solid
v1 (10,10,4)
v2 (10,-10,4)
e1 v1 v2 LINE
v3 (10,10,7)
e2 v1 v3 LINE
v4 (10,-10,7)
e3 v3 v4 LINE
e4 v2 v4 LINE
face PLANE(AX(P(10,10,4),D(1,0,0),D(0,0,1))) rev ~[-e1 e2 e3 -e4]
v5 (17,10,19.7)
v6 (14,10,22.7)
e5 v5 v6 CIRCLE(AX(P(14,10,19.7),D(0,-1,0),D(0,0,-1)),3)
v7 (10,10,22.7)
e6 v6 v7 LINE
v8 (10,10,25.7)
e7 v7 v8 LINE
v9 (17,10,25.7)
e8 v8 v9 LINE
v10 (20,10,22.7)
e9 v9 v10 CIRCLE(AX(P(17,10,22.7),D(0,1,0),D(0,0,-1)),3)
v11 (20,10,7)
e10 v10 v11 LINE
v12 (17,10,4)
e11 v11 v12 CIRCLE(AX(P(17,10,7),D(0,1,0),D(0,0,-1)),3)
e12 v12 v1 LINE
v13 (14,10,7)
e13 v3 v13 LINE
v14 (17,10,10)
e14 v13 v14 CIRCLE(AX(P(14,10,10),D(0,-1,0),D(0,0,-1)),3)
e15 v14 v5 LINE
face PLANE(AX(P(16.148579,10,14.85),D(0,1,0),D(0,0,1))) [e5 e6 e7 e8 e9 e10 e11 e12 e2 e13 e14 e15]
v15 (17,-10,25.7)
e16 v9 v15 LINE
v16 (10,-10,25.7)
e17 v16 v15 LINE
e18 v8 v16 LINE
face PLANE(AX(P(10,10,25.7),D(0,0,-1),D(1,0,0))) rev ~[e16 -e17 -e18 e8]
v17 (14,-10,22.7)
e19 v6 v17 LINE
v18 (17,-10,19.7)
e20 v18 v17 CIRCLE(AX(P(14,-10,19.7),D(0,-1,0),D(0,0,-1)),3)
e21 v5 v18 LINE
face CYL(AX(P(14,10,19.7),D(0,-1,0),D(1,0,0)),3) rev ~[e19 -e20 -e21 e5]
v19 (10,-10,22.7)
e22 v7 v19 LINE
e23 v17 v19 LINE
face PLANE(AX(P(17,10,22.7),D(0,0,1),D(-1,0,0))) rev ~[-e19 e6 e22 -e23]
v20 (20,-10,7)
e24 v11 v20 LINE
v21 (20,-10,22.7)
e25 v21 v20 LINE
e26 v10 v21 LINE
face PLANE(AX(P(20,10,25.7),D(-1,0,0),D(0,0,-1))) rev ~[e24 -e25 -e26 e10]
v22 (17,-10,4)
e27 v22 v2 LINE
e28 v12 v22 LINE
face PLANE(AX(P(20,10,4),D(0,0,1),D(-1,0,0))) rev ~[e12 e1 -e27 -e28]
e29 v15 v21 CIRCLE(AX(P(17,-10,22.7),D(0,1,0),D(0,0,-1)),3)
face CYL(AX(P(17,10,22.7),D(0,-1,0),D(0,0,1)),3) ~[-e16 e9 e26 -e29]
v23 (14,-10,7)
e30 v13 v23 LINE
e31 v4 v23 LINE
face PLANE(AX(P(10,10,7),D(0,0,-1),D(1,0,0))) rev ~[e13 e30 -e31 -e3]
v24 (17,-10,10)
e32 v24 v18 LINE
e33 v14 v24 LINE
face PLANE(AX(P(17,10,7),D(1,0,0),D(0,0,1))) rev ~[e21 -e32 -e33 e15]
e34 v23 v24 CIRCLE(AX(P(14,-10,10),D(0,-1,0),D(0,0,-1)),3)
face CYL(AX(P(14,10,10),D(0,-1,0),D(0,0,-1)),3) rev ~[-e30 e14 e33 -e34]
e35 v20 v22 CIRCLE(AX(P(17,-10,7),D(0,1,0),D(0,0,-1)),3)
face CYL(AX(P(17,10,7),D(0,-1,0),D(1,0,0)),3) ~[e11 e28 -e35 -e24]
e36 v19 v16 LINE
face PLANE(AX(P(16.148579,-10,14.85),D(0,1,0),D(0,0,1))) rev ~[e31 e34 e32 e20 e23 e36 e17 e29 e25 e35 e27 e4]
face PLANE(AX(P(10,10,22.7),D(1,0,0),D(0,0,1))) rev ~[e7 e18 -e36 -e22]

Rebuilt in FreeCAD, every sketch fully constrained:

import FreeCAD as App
import Part
import Sketcher

V = App.Vector
Q = App.Units.Quantity


def edges_at(feature, points):
    """Names of the edges that pass closest to the given points."""
    edges = feature.Shape.Edges
    near = lambda p: min(range(len(edges)), key=lambda i: edges[i].distToShape(Part.Vertex(*p))[0])
    return sorted({f"Edge{near(p) + 1}" for p in points})


def add_polygon(sketch, points):
    """Adds a closed chain of lines whose ends are joined by coincident constraints."""
    first, n = sketch.GeometryCount, len(points)
    for a, b in zip(points, points[1:] + points[:1]):
        sketch.addGeometry(Part.LineSegment(App.Vector(*a, 0), App.Vector(*b, 0)), False)
    for i in range(n):
        sketch.addConstraint(Sketcher.Constraint("Coincident", first + i, 2, first + (i + 1) % n, 1))

doc = App.newDocument("Part")
params = doc.addObject("Spreadsheet::Sheet", "Params")
for row, (alias, value) in enumerate([
    ("sketch1_width", "10 mm"),
    ("sketch1_width2", "7 mm"),
    ("sketch1_height", "3 mm"),
    ("sketch1_height2", "21.7 mm"),
    ("sketch2_height", "20 mm"),
    ("fillet_radius", "3 mm"),
    ("fillet2_radius", "3 mm"),
    ("fillet3_radius", "3 mm"),
    ("fillet4_radius", "3 mm"),
], start=1):
    params.set(f"A{row}", alias)
    params.set(f"B{row}", "=" + value)
    params.setAlias(f"B{row}", alias)

body = doc.addObject("PartDesign::Body", "Body")

# Sketch on XZ plane
sketch1 = body.newObject("Sketcher::SketchObject", "Sketch")
sketch1.AttachmentSupport = (doc.getObject("XZ_Plane"), [""])
sketch1.MapMode = "FlatFace"
add_polygon(sketch1, [(10, 25.7), (20, 25.7), (20, 4), (10, 4), (10, 7), (17, 7), (17, 22.7), (10, 22.7)])  # lines 0-7
sketch1.addConstraint([
    Sketcher.Constraint("Horizontal", 0),
    Sketcher.Constraint("Vertical", 1),
    Sketcher.Constraint("Horizontal", 2),
    Sketcher.Constraint("Vertical", 3),
    Sketcher.Constraint("Horizontal", 4),
    Sketcher.Constraint("Vertical", 5),
    Sketcher.Constraint("Horizontal", 6),
    Sketcher.Constraint("Vertical", 7),
    Sketcher.Constraint("Vertical", 3, 2, 6, 2),
    Sketcher.Constraint("Equal", 3, 7),
    Sketcher.Constraint("DistanceX", 0, 1, 0, 2, Q("10 mm")),
    Sketcher.Constraint("DistanceX", 4, 1, 4, 2, Q("7 mm")),
    Sketcher.Constraint("DistanceY", 3, 1, 3, 2, Q("3 mm")),
    Sketcher.Constraint("DistanceY", 1, 2, 1, 1, Q("21.7 mm")),
    Sketcher.Constraint("DistanceX", -1, 1, 0, 2, Q("20 mm")),
    Sketcher.Constraint("DistanceY", -1, 1, 1, 2, Q("4 mm")),
])
sketch1.setExpression("Constraints[18]", "Params.sketch1_width")
sketch1.setExpression("Constraints[19]", "Params.sketch1_width2")
sketch1.setExpression("Constraints[20]", "Params.sketch1_height")
sketch1.setExpression("Constraints[21]", "Params.sketch1_height2")

# Sketch on XY plane
sketch2 = body.newObject("Sketcher::SketchObject", "Sketch001")
sketch2.AttachmentSupport = (doc.getObject("XY_Plane"), [""])
sketch2.MapMode = "FlatFace"
sketch2.addGeometry(Part.LineSegment(V(-30, 10, 0), V(-30, -10, 0)), False)
sketch2.addConstraint([
    Sketcher.Constraint("Vertical", 0),
    Sketcher.Constraint("DistanceY", 0, 2, 0, 1, Q("20 mm")),
    Sketcher.Constraint("DistanceX", 0, 1, -1, 1, Q("30 mm")),
    Sketcher.Constraint("DistanceY", -1, 1, 0, 1, Q("10 mm")),
])
sketch2.setExpression("Constraints[1]", "Params.sketch2_height")
doc.recompute()

additivepipe = body.newObject("PartDesign::AdditivePipe", "AdditivePipe")
additivepipe.Profile = sketch1
additivepipe.Spine = (sketch2, ["Edge1"])
doc.recompute()

fillet = body.newObject("PartDesign::Fillet", "Fillet")
fillet.Base = (additivepipe, edges_at(additivepipe, [(20, 0, 25.7)]))
fillet.setExpression("Radius", "Params.fillet_radius")
doc.recompute()

fillet2 = body.newObject("PartDesign::Fillet", "Fillet001")
fillet2.Base = (fillet, edges_at(fillet, [(20, 0, 4)]))
fillet2.setExpression("Radius", "Params.fillet2_radius")
doc.recompute()

fillet3 = body.newObject("PartDesign::Fillet", "Fillet002")
fillet3.Base = (fillet2, edges_at(fillet2, [(17, 0, 7)]))
fillet3.setExpression("Radius", "Params.fillet3_radius")
doc.recompute()

fillet4 = body.newObject("PartDesign::Fillet", "Fillet003")
fillet4.Base = (fillet3, edges_at(fillet3, [(17, 0, 22.7)]))
fillet4.setExpression("Radius", "Params.fillet4_radius")

doc.recompute()
